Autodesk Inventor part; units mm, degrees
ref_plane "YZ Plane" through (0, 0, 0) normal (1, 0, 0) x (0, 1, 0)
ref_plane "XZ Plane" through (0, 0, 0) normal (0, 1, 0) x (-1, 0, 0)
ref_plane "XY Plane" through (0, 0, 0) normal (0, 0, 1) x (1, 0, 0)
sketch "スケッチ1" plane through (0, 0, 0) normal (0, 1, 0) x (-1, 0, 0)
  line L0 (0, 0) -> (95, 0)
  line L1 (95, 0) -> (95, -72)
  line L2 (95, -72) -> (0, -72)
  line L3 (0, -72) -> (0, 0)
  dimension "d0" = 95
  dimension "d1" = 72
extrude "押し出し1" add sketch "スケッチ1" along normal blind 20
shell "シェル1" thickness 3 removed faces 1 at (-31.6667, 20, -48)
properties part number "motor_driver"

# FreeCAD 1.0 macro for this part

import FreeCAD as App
import Part
import Sketcher
Q = App.Units.Quantity


def faces_at(feature, points):
    """Names of the faces that lie closest to the given points."""
    faces = feature.Shape.Faces
    near = lambda p: min(range(len(faces)), key=lambda i: faces[i].distToShape(Part.Vertex(*p))[0])
    return sorted({f"Face{near(p) + 1}" for p in points})


def add_polygon(sketch, points):
    """Adds a closed chain of lines whose ends are joined by coincident constraints."""
    first, n = sketch.GeometryCount, len(points)
    for a, b in zip(points, points[1:] + points[:1]):
        sketch.addGeometry(Part.LineSegment(App.Vector(*a, 0), App.Vector(*b, 0)), False)
    for i in range(n):
        sketch.addConstraint(Sketcher.Constraint("Coincident", first + i, 2, first + (i + 1) % n, 1))

doc = App.newDocument("Part")
body = doc.addObject("PartDesign::Body", "Body")

sketch1 = doc.addObject("Sketcher::SketchObject", "Sketch")
body.addObject(sketch1)
sketch1.AttachmentSupport = (doc.XZ_Plane, [""])
sketch1.MapMode = "FlatFace"
add_polygon(sketch1, [(-95, 0), (0, 0), (0, -72), (-95, -72)])
sketch1.addConstraint(Sketcher.Constraint("Horizontal", 0))
sketch1.addConstraint(Sketcher.Constraint("Vertical", 1))
sketch1.addConstraint(Sketcher.Constraint("Horizontal", 2))
sketch1.addConstraint(Sketcher.Constraint("Vertical", 3))
sketch1.addConstraint(Sketcher.Constraint("Coincident", 0, 2, -1, 1))
sketch1.addConstraint(Sketcher.Constraint("DistanceX", 0, 1, 0, 2, Q("95 mm")))
sketch1.addConstraint(Sketcher.Constraint("DistanceY", 1, 2, 1, 1, Q("72 mm")))
pad1 = doc.addObject("PartDesign::Pad", "Pad")
body.addObject(pad1)
pad1.Profile = sketch1
pad1.Length = 20
pad1.Reversed = True
doc.recompute()

thickness = doc.addObject("PartDesign::Thickness", "Thickness")
body.addObject(thickness)
thickness.Base = (pad1, faces_at(pad1, [(-31.667, 20, -48)]))
thickness.Value = 3
thickness.Reversed = True
thickness.Join = "Intersection"

doc.recompute()
